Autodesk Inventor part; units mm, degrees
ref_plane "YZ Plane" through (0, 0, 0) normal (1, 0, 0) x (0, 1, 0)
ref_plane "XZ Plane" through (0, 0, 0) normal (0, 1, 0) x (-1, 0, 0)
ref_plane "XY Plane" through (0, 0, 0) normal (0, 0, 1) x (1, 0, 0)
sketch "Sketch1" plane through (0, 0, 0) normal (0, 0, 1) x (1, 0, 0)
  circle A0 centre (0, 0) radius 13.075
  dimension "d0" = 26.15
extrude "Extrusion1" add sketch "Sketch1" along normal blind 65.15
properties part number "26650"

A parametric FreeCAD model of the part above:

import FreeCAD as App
import Part
import Sketcher
from FreeCAD import Vector
Q = App.Units.Quantity

doc = App.newDocument("Part")
body = doc.addObject("PartDesign::Body", "Body")

sketch1 = doc.addObject("Sketcher::SketchObject", "Sketch")
body.addObject(sketch1)
sketch1.AttachmentSupport = (doc.XY_Plane, [""])
sketch1.MapMode = "FlatFace"
sketch1.addGeometry(Part.Circle(Vector(0, 0, 0), Vector(0, 0, 1), 13), False)
sketch1.addConstraint([
    Sketcher.Constraint("Coincident", 0, 3, -1, 1),
    Sketcher.Constraint("Diameter", 0, Q("26.15 mm")),
])
pad1 = doc.addObject("PartDesign::Pad", "Pad")
body.addObject(pad1)
pad1.Profile = sketch1
pad1.Length = 65.15

doc.recompute()
